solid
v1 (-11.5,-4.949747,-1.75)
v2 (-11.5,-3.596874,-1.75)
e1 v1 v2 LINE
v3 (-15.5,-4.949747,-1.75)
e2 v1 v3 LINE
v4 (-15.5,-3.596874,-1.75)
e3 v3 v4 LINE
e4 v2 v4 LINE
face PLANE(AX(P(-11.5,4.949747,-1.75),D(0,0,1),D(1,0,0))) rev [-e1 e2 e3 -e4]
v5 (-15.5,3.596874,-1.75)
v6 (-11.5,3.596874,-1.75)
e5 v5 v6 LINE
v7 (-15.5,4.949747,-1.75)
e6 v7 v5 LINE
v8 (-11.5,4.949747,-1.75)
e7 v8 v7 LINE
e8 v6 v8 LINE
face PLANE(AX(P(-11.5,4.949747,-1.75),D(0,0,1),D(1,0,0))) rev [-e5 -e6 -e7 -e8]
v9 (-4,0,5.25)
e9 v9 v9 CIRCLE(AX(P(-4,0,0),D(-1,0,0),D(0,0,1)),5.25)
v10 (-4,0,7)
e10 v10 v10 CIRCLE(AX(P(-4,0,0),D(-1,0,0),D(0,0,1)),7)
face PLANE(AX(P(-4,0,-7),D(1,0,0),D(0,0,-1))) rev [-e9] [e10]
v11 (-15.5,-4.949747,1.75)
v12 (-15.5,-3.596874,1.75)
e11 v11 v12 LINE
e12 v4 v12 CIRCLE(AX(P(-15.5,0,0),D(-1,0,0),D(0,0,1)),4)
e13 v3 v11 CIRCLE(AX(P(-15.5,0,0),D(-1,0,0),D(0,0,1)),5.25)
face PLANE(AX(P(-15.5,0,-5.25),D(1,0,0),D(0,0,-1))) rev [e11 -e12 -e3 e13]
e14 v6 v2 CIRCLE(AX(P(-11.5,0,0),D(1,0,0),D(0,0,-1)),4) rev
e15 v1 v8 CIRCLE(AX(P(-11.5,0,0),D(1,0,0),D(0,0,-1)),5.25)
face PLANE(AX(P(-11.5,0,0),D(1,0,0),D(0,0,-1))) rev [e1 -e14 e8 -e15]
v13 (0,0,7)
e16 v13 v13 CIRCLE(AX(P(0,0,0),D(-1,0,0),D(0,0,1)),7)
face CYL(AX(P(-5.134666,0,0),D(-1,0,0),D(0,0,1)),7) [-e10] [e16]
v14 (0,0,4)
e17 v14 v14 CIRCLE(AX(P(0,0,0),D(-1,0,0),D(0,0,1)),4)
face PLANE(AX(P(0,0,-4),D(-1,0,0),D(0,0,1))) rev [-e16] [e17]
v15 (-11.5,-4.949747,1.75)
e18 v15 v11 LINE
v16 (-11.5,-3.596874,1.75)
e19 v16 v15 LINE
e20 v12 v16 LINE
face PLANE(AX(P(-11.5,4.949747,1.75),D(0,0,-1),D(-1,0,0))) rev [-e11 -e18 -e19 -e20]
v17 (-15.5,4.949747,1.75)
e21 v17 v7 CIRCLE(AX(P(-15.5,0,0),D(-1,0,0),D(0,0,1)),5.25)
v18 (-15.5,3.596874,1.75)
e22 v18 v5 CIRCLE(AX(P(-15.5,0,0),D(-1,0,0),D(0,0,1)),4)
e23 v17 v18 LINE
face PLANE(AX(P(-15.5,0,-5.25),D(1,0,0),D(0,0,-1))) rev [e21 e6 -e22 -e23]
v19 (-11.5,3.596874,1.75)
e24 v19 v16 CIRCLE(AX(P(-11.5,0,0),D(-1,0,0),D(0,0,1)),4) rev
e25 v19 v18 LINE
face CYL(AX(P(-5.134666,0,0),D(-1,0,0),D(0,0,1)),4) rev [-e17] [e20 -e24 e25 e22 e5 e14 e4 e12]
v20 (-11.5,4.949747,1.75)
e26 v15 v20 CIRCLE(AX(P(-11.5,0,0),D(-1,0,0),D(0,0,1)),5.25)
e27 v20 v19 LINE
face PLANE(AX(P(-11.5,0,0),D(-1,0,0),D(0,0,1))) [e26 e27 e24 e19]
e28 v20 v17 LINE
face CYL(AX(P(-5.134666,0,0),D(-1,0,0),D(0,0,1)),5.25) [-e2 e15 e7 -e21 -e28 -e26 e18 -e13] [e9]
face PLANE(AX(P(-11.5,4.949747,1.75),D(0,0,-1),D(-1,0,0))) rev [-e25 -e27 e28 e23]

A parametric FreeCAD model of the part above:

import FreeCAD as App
import Part
import Sketcher
from FreeCAD import Vector


def add_polygon(sketch, points):
    """Adds a closed chain of lines whose ends are joined by coincident constraints."""
    first, n = sketch.GeometryCount, len(points)
    for a, b in zip(points, points[1:] + points[:1]):
        sketch.addGeometry(Part.LineSegment(App.Vector(*a, 0), App.Vector(*b, 0)), False)
    for i in range(n):
        sketch.addConstraint(Sketcher.Constraint("Coincident", first + i, 2, first + (i + 1) % n, 1))

doc = App.newDocument("Part")
body = doc.addObject("PartDesign::Body", "Body")

sketch1 = body.newObject("Sketcher::SketchObject", "Sketch")
sketch1.AttachmentSupport = (doc.getObject("XZ_Plane"), [""])
sketch1.MapMode = "FlatFace"
add_polygon(sketch1, [(0, -4), (0, -7), (-4, -7), (-4, -5.25), (-15.5, -5.25), (-15.5, -4)])
sketch1.addConstraint([
    Sketcher.Constraint("Vertical", 0),
    Sketcher.Constraint("Horizontal", 1),
    Sketcher.Constraint("Vertical", 2),
    Sketcher.Constraint("Horizontal", 3),
    Sketcher.Constraint("Vertical", 4),
    Sketcher.Constraint("Horizontal", 5),
    Sketcher.Constraint("PointOnObject", 0, 2, -2),
    Sketcher.Constraint("DistanceX", 1, 2, 1, 1, 4.0),
    Sketcher.Constraint("DistanceY", 0, 2, 0, 1, 3.0),
    Sketcher.Constraint("DistanceX", 3, 2, 3, 1, 11.5),
    Sketcher.Constraint("DistanceY", 0, 2, -1, 1, 7.0),
    Sketcher.Constraint("DistanceY", 2, 1, 2, 2, 1.75),
])
revolution = body.newObject("PartDesign::Revolution", "Revolution")
revolution.Profile = sketch1
revolution.ReferenceAxis = (sketch1, ["H_Axis"])
revolution.Angle = 360

sketch2 = body.newObject("Sketcher::SketchObject", "Sketch001")
sketch2.AttachmentSupport = (doc.getObject("YZ_Plane"), [""])
sketch2.MapMode = "FlatFace"
sketch2.AttachmentOffset = App.Placement(Vector(0, 0, -15.5), App.Rotation())
add_polygon(sketch2, [(4.949747, -5.25), (-4.949747, -5.25), (-4.949747, -1.75), (4.949747, -1.75)])
add_polygon(sketch2, [(4.949747, 1.75), (-4.949747, 1.75), (-4.949747, 5.25), (4.949747, 5.25)])
sketch2.addConstraint([
    Sketcher.Constraint("Horizontal", 0),
    Sketcher.Constraint("Vertical", 1),
    Sketcher.Constraint("Horizontal", 2),
    Sketcher.Constraint("Vertical", 3),
    Sketcher.Constraint("Horizontal", 4),
    Sketcher.Constraint("Vertical", 5),
    Sketcher.Constraint("Horizontal", 6),
    Sketcher.Constraint("Vertical", 7),
    Sketcher.Constraint("Symmetric", 2, 2, 4, 2, -1, 1),
    Sketcher.Constraint("Symmetric", 0, 2, 6, 2, -1, 1),
    Sketcher.Constraint("Vertical", 1, 2, 4, 2),
    Sketcher.Constraint("DistanceY", 1, 1, 1, 2, 3.5),
    Sketcher.Constraint("DistanceY", 0, 2, 4, 2, 7.0),
    Sketcher.Constraint("DistanceX", 0, 2, 0, 1, 9.899495),
])
pocket1 = body.newObject("PartDesign::Pocket", "Pocket")
pocket1.Profile = sketch2
pocket1.Length = 4
pocket1.Reversed = True

doc.recompute()
